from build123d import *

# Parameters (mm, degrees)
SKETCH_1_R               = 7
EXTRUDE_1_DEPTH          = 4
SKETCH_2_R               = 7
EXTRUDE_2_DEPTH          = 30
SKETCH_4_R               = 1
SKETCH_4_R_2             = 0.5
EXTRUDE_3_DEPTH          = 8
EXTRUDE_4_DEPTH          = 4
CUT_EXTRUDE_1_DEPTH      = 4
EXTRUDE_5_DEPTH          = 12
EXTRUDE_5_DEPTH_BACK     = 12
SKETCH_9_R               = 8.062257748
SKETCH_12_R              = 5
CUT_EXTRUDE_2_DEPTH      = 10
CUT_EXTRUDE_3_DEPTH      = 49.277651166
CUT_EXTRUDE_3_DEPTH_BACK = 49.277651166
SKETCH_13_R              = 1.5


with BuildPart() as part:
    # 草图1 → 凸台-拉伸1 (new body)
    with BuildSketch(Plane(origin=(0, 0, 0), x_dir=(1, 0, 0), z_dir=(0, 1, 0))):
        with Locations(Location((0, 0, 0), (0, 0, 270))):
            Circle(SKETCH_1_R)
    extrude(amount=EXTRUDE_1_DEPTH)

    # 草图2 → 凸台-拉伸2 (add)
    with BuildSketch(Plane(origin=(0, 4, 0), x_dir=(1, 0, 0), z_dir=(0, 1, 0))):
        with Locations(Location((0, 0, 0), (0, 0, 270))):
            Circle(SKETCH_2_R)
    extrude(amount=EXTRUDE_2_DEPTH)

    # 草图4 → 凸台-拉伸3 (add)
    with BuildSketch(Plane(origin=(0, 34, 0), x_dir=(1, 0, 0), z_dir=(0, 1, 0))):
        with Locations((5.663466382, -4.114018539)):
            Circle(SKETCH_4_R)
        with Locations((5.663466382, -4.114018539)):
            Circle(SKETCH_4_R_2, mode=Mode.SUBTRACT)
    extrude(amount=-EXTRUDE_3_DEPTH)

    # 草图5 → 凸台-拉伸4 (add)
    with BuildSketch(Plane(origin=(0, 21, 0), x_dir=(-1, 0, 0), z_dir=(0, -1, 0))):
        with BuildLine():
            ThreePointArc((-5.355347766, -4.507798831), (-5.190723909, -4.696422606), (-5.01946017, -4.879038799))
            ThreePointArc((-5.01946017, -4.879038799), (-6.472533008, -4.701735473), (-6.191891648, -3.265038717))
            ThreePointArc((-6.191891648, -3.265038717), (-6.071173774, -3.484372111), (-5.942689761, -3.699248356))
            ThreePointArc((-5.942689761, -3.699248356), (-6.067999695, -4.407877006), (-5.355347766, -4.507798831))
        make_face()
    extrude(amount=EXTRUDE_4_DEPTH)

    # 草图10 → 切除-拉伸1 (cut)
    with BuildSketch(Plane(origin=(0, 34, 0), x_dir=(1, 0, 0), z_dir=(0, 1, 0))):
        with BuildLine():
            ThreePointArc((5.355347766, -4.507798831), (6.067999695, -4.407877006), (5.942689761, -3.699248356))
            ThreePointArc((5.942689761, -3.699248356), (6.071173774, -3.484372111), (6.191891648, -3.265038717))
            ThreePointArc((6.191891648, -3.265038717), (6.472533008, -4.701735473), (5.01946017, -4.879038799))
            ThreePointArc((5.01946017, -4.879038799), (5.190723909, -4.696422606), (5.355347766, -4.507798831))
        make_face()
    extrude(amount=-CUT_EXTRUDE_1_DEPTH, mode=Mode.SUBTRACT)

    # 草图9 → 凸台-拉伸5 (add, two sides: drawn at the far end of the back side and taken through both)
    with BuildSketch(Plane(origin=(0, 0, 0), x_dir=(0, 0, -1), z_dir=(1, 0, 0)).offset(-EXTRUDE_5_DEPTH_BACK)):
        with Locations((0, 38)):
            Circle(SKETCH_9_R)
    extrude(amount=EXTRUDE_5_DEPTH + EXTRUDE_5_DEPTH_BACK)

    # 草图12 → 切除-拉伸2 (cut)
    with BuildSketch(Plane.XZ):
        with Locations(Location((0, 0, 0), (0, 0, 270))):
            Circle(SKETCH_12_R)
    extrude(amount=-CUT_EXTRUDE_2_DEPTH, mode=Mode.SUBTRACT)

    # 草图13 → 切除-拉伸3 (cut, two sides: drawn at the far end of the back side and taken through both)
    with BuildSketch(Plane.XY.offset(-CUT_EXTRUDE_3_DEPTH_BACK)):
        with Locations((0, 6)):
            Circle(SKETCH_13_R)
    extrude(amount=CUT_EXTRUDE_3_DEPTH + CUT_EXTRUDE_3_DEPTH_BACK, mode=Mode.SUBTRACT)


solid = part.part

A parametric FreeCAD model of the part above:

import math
import FreeCAD as App
import Part
import Sketcher
from FreeCAD import Vector

doc = App.newDocument("Part")
params = doc.addObject("Spreadsheet::Sheet", "Params")
for row, (alias, value) in enumerate([
    ("sketch1_diameter", "14 mm"),
    ("pad1_length", "4 mm"),
    ("sketch2_diameter", "14 mm"),
    ("pad2_length", "30 mm"),
    ("sketch3_diameter", "2 mm"),
    ("sketch3_diameter2", "1 mm"),
    ("pad3_length", "8 mm"),
    ("sketch4_radius", "7 mm"),
    ("sketch4_radius2", "1 mm"),
    ("sketch4_radius3", "0.5 mm"),
    ("pad4_length", "4 mm"),
    ("sketch5_radius", "7 mm"),
    ("sketch5_radius2", "1 mm"),
    ("sketch5_radius3", "0.5 mm"),
    ("pocket1_length", "4 mm"),
    ("pad5_length", "12 mm"),
    ("pad5_length2", "12 mm"),
    ("sketch7_diameter", "10 mm"),
    ("pocket2_length", "10 mm"),
    ("sketch8_diameter", "3 mm"),
], start=1):
    params.set(f"A{row}", alias)
    params.set(f"B{row}", "=" + value)
    params.setAlias(f"B{row}", alias)

body = doc.addObject("PartDesign::Body", "Body")

# Sketch on XZ plane
sketch1 = body.newObject("Sketcher::SketchObject", "Sketch")
sketch1.AttachmentSupport = (doc.getObject("XZ_Plane"), [""])
sketch1.MapMode = "FlatFace"
sketch1.addGeometry(Part.Circle(Vector(0, 0, 0), Vector(0, 0, 1), 7), False)
sketch1.addConstraint([
    Sketcher.Constraint("Coincident", 0, 3, -1, 1),
    Sketcher.Constraint("Diameter", 0, 14.0),
])
sketch1.setExpression("Constraints[1]", "Params.sketch1_diameter")
pad1 = body.newObject("PartDesign::Pad", "Pad")
pad1.Profile = sketch1
pad1.setExpression("Length", "Params.pad1_length")
pad1.Reversed = True

# Sketch on XZ plane
sketch2 = body.newObject("Sketcher::SketchObject", "Sketch001")
sketch2.AttachmentSupport = (doc.getObject("XZ_Plane"), [""])
sketch2.MapMode = "FlatFace"
sketch2.AttachmentOffset = App.Placement(Vector(0, 0, -4), App.Rotation())
sketch2.addGeometry(Part.Circle(Vector(0, 0, 0), Vector(0, 0, 1), 7), False)
sketch2.addConstraint([
    Sketcher.Constraint("Coincident", 0, 3, -1, 1),
    Sketcher.Constraint("Diameter", 0, 14.0),
])
sketch2.setExpression("Constraints[1]", "Params.sketch2_diameter")
pad2 = body.newObject("PartDesign::Pad", "Pad001")
pad2.Profile = sketch2
pad2.setExpression("Length", "Params.pad2_length")
pad2.Reversed = True

# Sketch on XZ plane
sketch3 = body.newObject("Sketcher::SketchObject", "Sketch002")
sketch3.AttachmentSupport = (doc.getObject("XZ_Plane"), [""])
sketch3.MapMode = "FlatFace"
sketch3.AttachmentOffset = App.Placement(Vector(0, 0, -34), App.Rotation())
sketch3.addGeometry([
    Part.Circle(Vector(5.7, 4.1, 0), Vector(0, 0, 1), 1),
    Part.Circle(Vector(5.7, 4.1, 0), Vector(0, 0, 1), 0.5),
], False)
sketch3.addConstraint([
    Sketcher.Constraint("Coincident", 1, 3, 0, 3),
    Sketcher.Constraint("Diameter", 0, 2.0),
    Sketcher.Constraint("Diameter", 1, 1.0),
    Sketcher.Constraint("DistanceY", -1, 1, 0, 3, 4.114019),
    Sketcher.Constraint("DistanceX", -1, 1, 0, 3, 5.663466),
])
sketch3.setExpression("Constraints[1]", "Params.sketch3_diameter")
sketch3.setExpression("Constraints[2]", "Params.sketch3_diameter2")
pad3 = body.newObject("PartDesign::Pad", "Pad002")
pad3.Profile = sketch3
pad3.setExpression("Length", "Params.pad3_length")

# Sketch on XZ plane
sketch4 = body.newObject("Sketcher::SketchObject", "Sketch003")
sketch4.AttachmentSupport = (doc.getObject("XZ_Plane"), [""])
sketch4.MapMode = "FlatFace"
sketch4.AttachmentOffset = App.Placement(Vector(0, 0, -21), App.Rotation())
sketch4.addGeometry([
    Part.ArcOfCircle(Part.Circle(Vector(0, 0, 0), Vector(0, 0, 1), 7), math.radians(40.09), math.radians(44.19)),
    Part.ArcOfCircle(Part.Circle(Vector(5.7, 4.1, 0), Vector(0, 0, 1), 0.5), math.radians(-56), math.radians(128)),
    Part.ArcOfCircle(Part.Circle(Vector(0, 0, 0), Vector(0, 0, 1), 7), math.radians(27.8), math.radians(31.9)),
    Part.ArcOfCircle(Part.Circle(Vector(5.7, 4.1, 0), Vector(0, 0, 1), 1), math.radians(-58), math.radians(130)),
], False)
sketch4.addConstraint([
    Sketcher.Constraint("Coincident", 0, 1, 1, 2),
    Sketcher.Constraint("Coincident", 1, 1, 2, 2),
    Sketcher.Constraint("Coincident", 2, 1, 3, 1),
    Sketcher.Constraint("Coincident", 3, 2, 0, 2),
    Sketcher.Constraint("Coincident", 0, 3, -1, 1),
    Sketcher.Constraint("Coincident", 2, 3, -1, 1),
    Sketcher.Constraint("Coincident", 3, 3, 1, 3),
    Sketcher.Constraint("Equal", 0, 2),
    Sketcher.Constraint("Radius", 0, 7.0),
    Sketcher.Constraint("Radius", 3, 1.0),
    Sketcher.Constraint("Radius", 1, 0.5),
    Sketcher.Constraint("DistanceY", 2, 1, 3, 2, 1.614),
    Sketcher.Constraint("DistanceY", -1, 1, 0, 1, 4.507799),
])
sketch4.setExpression("Constraints[8]", "Params.sketch4_radius")
sketch4.setExpression("Constraints[9]", "Params.sketch4_radius2")
sketch4.setExpression("Constraints[10]", "Params.sketch4_radius3")
pad4 = body.newObject("PartDesign::Pad", "Pad003")
pad4.Profile = sketch4
pad4.setExpression("Length", "Params.pad4_length")

# Sketch on XZ plane
sketch5 = body.newObject("Sketcher::SketchObject", "Sketch004")
sketch5.AttachmentSupport = (doc.getObject("XZ_Plane"), [""])
sketch5.MapMode = "FlatFace"
sketch5.AttachmentOffset = App.Placement(Vector(0, 0, -34), App.Rotation())
sketch5.addGeometry([
    Part.ArcOfCircle(Part.Circle(Vector(5.7, 4.1, 0), Vector(0, 0, 1), 0.5), math.radians(-56), math.radians(128)),
    Part.ArcOfCircle(Part.Circle(Vector(0, 0, 0), Vector(0, 0, 1), 7), math.radians(40.09), math.radians(44.19)),
    Part.ArcOfCircle(Part.Circle(Vector(5.7, 4.1, 0), Vector(0, 0, 1), 1), math.radians(-58), math.radians(130)),
    Part.ArcOfCircle(Part.Circle(Vector(0, 0, 0), Vector(0, 0, 1), 7), math.radians(27.8), math.radians(31.9)),
], False)
sketch5.addConstraint([
    Sketcher.Constraint("Coincident", 0, 2, 1, 1),
    Sketcher.Constraint("Coincident", 1, 2, 2, 2),
    Sketcher.Constraint("Coincident", 2, 1, 3, 1),
    Sketcher.Constraint("Coincident", 3, 2, 0, 1),
    Sketcher.Constraint("Coincident", 1, 3, -1, 1),
    Sketcher.Constraint("Coincident", 3, 3, -1, 1),
    Sketcher.Constraint("Coincident", 2, 3, 0, 3),
    Sketcher.Constraint("Equal", 1, 3),
    Sketcher.Constraint("Radius", 1, 7.0),
    Sketcher.Constraint("Radius", 2, 1.0),
    Sketcher.Constraint("Radius", 0, 0.5),
    Sketcher.Constraint("DistanceY", 2, 1, 1, 2, 1.614),
    Sketcher.Constraint("DistanceY", -1, 1, 0, 2, 4.507799),
])
sketch5.setExpression("Constraints[8]", "Params.sketch5_radius")
sketch5.setExpression("Constraints[9]", "Params.sketch5_radius2")
sketch5.setExpression("Constraints[10]", "Params.sketch5_radius3")
pocket1 = body.newObject("PartDesign::Pocket", "Pocket")
pocket1.Profile = sketch5
pocket1.setExpression("Length", "Params.pocket1_length")
pocket1.Reversed = True

# Sketch on YZ plane
sketch6 = body.newObject("Sketcher::SketchObject", "Sketch005")
sketch6.AttachmentSupport = (doc.getObject("YZ_Plane"), [""])
sketch6.MapMode = "FlatFace"
sketch6.addGeometry(Part.Circle(Vector(38, 0, 0), Vector(0, 0, 1), 8), False)
sketch6.addConstraint([
    Sketcher.Constraint("PointOnObject", 0, 3, -1),
    Sketcher.Constraint("DistanceX", -1, 1, 0, 3, 38.0),
    Sketcher.Constraint("Diameter", 0, 16.124515),
])
pad5 = body.newObject("PartDesign::Pad", "Pad004")
pad5.Profile = sketch6
pad5.Type = "TwoLengths"
pad5.setExpression("Length", "Params.pad5_length")
pad5.setExpression("Length2", "Params.pad5_length2")

# Sketch on XZ plane
sketch7 = body.newObject("Sketcher::SketchObject", "Sketch006")
sketch7.AttachmentSupport = (doc.getObject("XZ_Plane"), [""])
sketch7.MapMode = "FlatFace"
sketch7.addGeometry(Part.Circle(Vector(0, 0, 0), Vector(0, 0, 1), 5), False)
sketch7.addConstraint([
    Sketcher.Constraint("Coincident", 0, 3, -1, 1),
    Sketcher.Constraint("Diameter", 0, 10.0),
])
sketch7.setExpression("Constraints[1]", "Params.sketch7_diameter")
pocket2 = body.newObject("PartDesign::Pocket", "Pocket001")
pocket2.Profile = sketch7
pocket2.setExpression("Length", "Params.pocket2_length")

# Sketch on XY plane
sketch8 = body.newObject("Sketcher::SketchObject", "Sketch007")
sketch8.AttachmentSupport = (doc.getObject("XY_Plane"), [""])
sketch8.MapMode = "FlatFace"
sketch8.addGeometry(Part.Circle(Vector(0, 6, 0), Vector(0, 0, 1), 1.5), False)
sketch8.addConstraint([
    Sketcher.Constraint("PointOnObject", 0, 3, -2),
    Sketcher.Constraint("Diameter", 0, 3.0),
    Sketcher.Constraint("DistanceY", -1, 1, 0, 3, 6.0),
])
sketch8.setExpression("Constraints[1]", "Params.sketch8_diameter")
pocket3 = body.newObject("PartDesign::Pocket", "Pocket002")
pocket3.Profile = sketch8
pocket3.Type = "ThroughAll"
pocket3.Midplane = True

doc.recompute()
